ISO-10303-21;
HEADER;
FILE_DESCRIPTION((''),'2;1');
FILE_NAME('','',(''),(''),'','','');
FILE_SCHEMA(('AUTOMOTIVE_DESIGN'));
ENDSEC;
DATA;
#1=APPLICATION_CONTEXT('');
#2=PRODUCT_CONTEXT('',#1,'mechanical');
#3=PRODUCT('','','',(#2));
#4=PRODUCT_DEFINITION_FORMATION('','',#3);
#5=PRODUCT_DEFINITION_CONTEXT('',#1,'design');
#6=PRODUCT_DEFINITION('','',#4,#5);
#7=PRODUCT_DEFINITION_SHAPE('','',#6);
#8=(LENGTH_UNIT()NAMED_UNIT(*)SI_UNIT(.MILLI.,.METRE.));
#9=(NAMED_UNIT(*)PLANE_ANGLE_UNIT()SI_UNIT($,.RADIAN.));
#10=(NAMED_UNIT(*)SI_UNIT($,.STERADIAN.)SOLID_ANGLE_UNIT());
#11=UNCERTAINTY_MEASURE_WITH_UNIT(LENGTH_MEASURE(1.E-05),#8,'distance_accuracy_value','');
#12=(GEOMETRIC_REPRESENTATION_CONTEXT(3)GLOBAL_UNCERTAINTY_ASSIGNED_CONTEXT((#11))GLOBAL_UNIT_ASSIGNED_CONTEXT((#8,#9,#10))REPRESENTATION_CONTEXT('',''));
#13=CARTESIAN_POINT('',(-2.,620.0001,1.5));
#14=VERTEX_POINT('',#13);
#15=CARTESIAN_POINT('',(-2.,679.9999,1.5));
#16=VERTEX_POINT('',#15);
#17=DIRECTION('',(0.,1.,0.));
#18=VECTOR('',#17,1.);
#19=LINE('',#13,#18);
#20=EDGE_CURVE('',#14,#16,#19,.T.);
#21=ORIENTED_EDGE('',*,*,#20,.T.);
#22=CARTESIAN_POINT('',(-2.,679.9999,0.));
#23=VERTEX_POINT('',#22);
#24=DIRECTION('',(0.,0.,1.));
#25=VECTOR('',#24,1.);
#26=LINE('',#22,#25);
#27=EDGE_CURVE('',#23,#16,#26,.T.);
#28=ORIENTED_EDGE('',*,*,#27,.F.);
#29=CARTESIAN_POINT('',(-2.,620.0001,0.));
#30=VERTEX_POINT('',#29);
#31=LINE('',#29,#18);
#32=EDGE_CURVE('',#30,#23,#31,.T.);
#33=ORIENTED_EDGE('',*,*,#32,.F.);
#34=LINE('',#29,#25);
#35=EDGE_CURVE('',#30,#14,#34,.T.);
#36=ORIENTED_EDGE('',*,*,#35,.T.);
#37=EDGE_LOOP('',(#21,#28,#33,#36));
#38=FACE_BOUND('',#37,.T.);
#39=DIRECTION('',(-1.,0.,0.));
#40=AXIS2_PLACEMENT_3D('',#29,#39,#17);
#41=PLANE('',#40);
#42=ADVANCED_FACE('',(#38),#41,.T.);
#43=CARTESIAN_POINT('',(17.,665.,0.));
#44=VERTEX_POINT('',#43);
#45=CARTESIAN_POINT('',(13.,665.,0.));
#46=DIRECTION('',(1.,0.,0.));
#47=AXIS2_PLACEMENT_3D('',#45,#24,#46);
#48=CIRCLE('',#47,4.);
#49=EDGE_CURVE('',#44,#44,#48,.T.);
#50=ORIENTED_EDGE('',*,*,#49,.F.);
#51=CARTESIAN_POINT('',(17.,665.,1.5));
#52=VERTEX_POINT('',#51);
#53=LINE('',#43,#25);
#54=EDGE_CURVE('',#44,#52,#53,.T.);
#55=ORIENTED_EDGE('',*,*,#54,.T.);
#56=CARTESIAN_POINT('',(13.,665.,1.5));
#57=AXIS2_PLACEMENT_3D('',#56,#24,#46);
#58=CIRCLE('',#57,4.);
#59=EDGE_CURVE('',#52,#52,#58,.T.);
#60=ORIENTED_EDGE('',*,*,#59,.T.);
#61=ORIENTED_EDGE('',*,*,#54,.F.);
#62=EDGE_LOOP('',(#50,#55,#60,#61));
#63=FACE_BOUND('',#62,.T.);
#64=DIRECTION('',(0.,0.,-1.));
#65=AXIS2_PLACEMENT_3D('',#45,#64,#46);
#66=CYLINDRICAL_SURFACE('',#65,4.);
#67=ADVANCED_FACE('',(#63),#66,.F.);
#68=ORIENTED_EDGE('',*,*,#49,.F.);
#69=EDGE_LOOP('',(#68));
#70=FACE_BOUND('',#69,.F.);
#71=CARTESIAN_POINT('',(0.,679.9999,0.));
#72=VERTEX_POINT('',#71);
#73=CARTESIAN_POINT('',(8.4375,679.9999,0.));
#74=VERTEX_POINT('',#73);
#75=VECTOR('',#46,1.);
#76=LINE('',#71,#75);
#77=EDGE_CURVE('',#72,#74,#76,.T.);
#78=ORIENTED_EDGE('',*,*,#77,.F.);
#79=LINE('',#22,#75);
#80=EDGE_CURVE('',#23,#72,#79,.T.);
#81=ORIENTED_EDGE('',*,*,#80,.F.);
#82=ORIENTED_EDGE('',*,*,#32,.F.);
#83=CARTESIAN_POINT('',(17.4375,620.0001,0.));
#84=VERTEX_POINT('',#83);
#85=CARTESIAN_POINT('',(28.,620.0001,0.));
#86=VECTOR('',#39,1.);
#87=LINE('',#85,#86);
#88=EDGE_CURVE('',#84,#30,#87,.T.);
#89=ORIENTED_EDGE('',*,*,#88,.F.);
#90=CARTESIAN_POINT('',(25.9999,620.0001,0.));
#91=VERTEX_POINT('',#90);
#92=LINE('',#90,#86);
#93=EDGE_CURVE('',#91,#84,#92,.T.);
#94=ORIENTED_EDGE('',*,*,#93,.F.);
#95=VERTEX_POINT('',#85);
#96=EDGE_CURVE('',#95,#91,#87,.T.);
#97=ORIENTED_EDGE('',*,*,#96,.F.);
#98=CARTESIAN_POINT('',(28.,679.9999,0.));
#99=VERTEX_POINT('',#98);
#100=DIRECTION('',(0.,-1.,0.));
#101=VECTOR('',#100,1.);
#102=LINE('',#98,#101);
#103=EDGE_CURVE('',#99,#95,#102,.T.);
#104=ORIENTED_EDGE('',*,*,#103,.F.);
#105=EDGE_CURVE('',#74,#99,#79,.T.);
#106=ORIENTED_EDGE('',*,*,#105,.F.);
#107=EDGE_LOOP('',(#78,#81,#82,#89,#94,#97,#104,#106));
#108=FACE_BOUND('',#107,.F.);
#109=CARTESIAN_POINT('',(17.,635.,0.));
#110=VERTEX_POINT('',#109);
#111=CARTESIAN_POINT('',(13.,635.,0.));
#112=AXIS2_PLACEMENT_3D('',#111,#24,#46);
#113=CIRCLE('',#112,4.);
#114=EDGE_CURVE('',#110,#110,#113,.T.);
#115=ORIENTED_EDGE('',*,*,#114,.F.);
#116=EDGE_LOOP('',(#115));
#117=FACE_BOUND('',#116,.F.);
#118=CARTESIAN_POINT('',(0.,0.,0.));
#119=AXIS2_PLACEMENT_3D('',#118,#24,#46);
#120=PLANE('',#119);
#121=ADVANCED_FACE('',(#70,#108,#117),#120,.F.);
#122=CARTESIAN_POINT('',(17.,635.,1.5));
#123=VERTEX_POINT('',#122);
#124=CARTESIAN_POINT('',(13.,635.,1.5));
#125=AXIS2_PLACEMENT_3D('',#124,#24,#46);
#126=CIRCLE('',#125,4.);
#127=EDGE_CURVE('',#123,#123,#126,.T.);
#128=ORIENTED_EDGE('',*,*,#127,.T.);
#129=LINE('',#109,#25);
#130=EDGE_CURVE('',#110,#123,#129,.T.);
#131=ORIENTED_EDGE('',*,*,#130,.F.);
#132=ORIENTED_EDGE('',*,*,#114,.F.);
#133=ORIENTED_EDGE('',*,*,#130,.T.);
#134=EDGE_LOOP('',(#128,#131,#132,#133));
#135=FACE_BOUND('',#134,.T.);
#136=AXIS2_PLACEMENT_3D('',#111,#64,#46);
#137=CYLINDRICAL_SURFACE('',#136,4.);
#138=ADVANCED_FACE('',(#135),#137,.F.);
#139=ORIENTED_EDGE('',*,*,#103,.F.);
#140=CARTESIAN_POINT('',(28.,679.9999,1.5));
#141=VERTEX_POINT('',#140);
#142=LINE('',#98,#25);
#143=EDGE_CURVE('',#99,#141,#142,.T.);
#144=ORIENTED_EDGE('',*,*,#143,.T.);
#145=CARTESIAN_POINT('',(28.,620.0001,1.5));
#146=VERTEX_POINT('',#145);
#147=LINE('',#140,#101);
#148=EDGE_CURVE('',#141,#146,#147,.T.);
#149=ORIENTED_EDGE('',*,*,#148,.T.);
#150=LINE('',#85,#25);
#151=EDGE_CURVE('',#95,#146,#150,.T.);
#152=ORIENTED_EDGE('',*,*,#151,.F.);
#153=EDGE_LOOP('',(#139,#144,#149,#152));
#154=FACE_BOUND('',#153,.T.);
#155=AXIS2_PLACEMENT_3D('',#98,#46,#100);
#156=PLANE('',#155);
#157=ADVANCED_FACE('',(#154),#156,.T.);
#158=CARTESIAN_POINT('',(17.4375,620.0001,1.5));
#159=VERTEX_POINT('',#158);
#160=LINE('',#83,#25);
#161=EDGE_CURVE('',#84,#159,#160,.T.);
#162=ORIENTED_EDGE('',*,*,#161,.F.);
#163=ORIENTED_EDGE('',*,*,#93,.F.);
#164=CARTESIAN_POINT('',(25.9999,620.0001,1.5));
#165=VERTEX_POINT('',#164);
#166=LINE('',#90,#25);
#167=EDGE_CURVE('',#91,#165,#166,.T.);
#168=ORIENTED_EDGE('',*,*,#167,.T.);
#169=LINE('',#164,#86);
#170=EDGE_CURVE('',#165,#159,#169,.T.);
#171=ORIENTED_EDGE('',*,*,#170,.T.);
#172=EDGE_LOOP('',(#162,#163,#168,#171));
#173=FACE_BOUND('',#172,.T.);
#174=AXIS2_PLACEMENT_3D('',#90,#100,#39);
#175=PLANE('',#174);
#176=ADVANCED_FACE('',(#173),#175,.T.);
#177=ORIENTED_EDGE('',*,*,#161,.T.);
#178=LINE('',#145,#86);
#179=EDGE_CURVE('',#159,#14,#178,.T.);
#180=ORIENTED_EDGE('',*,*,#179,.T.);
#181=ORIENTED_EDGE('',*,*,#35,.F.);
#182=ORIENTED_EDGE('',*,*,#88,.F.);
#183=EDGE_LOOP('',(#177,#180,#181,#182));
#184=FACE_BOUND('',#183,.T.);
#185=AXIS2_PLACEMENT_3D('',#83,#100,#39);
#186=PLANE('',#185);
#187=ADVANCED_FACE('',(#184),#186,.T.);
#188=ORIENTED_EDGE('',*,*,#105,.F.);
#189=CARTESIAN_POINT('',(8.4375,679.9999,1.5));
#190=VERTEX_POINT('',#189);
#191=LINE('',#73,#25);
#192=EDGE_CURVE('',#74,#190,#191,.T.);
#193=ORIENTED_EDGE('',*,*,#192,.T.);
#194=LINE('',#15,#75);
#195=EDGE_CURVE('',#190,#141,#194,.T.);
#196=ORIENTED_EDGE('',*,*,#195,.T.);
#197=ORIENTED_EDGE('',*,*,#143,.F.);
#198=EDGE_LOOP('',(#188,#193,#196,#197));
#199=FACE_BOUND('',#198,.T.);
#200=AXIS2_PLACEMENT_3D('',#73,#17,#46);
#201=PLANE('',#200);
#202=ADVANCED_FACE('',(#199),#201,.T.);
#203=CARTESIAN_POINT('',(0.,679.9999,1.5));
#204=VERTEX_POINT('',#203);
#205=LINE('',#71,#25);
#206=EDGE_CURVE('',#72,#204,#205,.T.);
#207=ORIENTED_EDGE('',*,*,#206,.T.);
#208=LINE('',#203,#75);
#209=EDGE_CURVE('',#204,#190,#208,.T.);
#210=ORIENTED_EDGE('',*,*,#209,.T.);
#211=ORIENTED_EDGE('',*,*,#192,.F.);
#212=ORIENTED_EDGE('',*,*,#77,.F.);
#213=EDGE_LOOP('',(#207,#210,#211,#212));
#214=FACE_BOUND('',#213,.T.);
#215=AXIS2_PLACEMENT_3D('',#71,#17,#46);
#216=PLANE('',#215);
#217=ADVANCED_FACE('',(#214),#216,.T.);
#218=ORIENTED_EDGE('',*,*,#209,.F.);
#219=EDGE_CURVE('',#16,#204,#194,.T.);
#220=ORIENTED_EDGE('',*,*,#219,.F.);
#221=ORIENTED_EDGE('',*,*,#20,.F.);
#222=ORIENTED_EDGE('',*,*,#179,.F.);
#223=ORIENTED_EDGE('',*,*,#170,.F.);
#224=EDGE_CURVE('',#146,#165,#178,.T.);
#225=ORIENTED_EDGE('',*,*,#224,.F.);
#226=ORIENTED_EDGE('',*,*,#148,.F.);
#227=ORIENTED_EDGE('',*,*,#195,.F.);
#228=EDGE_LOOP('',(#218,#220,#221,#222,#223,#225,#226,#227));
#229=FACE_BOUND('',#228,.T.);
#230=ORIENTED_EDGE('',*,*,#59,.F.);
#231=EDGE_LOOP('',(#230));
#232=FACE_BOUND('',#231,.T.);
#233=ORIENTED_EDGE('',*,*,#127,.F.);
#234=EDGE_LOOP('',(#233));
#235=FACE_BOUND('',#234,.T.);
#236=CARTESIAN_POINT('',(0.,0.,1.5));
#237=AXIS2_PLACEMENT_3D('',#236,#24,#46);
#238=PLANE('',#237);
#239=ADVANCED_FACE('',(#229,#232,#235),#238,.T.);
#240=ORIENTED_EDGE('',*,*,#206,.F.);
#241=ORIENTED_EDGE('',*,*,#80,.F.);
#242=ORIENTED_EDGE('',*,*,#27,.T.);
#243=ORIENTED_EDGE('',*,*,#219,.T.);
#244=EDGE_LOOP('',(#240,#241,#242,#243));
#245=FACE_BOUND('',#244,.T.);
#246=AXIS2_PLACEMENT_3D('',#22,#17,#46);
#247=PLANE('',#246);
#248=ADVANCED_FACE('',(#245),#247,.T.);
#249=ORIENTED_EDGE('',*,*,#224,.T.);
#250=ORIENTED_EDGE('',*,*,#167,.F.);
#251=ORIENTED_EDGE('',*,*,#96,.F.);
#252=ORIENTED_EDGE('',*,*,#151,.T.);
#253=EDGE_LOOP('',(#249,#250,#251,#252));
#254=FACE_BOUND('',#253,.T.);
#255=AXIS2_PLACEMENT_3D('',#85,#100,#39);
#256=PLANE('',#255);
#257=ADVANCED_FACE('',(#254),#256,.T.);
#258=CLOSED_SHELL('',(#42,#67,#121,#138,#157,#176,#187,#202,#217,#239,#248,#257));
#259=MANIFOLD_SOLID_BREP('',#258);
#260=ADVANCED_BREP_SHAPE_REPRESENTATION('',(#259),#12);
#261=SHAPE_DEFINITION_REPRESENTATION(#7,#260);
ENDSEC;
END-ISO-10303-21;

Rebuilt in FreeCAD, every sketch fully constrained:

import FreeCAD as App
import Part
import Sketcher
from FreeCAD import Vector

doc = App.newDocument("Part")
body = doc.addObject("PartDesign::Body", "Body")

# Sketch on XY plane
sketch1 = body.newObject("Sketcher::SketchObject", "Sketch")
sketch1.AttachmentSupport = (doc.getObject("XY_Plane"), [""])
sketch1.MapMode = "FlatFace"
sketch1.addGeometry([
    Part.LineSegment(Vector(-2, 620, 0), Vector(28, 620, 0)),  # 0
    Part.LineSegment(Vector(28, 620, 0), Vector(28, 680, 0)),  # 1
    Part.LineSegment(Vector(28, 680, 0), Vector(-2, 680, 0)),  # 2
    Part.LineSegment(Vector(-2, 680, 0), Vector(-2, 620, 0)),  # 3
    Part.Circle(Vector(13, 635, 0), Vector(0, 0, 1), 4),  # 4
    Part.Circle(Vector(13, 665, 0), Vector(0, 0, 1), 4),  # 5
], False)
sketch1.addConstraint([
    Sketcher.Constraint("Coincident", 0, 2, 1, 1),
    Sketcher.Constraint("Coincident", 1, 2, 2, 1),
    Sketcher.Constraint("Coincident", 2, 2, 3, 1),
    Sketcher.Constraint("Coincident", 3, 2, 0, 1),
    Sketcher.Constraint("Horizontal", 0),
    Sketcher.Constraint("Vertical", 1),
    Sketcher.Constraint("Horizontal", 2),
    Sketcher.Constraint("Vertical", 3),
    Sketcher.Constraint("Equal", 4, 5),
    Sketcher.Constraint("Vertical", 4, 3, 5, 3),
    Sketcher.Constraint("Diameter", 4, 8.0),
    Sketcher.Constraint("DistanceX", 0, 1, 0, 2, 30.0),
    Sketcher.Constraint("DistanceY", 4, 3, 5, 3, 30.0),
    Sketcher.Constraint("DistanceX", -1, 1, 4, 3, 13.0),
    Sketcher.Constraint("DistanceY", -1, 1, 4, 3, 635.0),
    Sketcher.Constraint("DistanceX", -1, 1, 0, 2, 28.0),
    Sketcher.Constraint("DistanceY", -1, 1, 0, 2, 620.0),
    Sketcher.Constraint("DistanceY", -1, 1, 1, 2, 680.0),
])
pad1 = body.newObject("PartDesign::Pad", "Pad")
pad1.Profile = sketch1
pad1.Length = 1.5

doc.recompute()
